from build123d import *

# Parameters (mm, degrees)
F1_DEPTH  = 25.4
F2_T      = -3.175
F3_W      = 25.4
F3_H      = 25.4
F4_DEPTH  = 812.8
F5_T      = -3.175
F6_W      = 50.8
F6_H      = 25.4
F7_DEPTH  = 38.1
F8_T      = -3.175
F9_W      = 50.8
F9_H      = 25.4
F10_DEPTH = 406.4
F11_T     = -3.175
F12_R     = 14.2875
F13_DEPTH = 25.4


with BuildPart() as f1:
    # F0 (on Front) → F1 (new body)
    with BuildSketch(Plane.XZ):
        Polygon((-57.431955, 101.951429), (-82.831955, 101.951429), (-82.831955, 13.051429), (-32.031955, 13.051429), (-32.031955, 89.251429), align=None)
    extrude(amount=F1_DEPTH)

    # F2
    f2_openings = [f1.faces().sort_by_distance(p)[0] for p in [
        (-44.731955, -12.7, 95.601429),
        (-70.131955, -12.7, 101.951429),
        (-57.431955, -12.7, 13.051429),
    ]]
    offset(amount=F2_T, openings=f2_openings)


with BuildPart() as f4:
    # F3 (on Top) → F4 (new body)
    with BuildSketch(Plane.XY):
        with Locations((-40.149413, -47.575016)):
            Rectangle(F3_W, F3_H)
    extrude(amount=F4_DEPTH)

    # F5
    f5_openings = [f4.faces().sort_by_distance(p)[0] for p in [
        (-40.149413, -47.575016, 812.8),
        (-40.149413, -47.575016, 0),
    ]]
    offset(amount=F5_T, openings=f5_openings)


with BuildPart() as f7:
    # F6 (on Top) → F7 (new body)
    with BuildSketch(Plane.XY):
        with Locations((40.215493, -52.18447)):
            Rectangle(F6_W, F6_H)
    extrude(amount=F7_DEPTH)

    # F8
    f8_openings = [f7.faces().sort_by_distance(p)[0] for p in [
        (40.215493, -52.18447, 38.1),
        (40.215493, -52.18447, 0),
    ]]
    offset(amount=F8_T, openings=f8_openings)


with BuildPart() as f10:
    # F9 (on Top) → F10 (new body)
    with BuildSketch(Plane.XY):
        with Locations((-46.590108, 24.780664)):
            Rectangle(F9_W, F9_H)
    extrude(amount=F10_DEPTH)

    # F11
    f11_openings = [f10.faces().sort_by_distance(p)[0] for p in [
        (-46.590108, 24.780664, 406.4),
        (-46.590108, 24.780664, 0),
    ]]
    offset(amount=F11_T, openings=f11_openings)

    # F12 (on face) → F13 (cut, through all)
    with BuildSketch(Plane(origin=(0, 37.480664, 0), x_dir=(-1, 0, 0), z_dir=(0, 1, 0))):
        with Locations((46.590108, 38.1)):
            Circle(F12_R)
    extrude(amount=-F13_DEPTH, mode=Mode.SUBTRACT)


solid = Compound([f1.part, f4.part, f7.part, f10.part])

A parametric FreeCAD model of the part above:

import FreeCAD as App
import Part
import Sketcher

V = App.Vector
Q = App.Units.Quantity


def faces_at(feature, points):
    """Names of the faces that lie closest to the given points."""
    faces = feature.Shape.Faces
    near = lambda p: min(range(len(faces)), key=lambda i: faces[i].distToShape(Part.Vertex(*p))[0])
    return sorted({f"Face{near(p) + 1}" for p in points})


def add_polygon(sketch, points):
    """Adds a closed chain of lines whose ends are joined by coincident constraints."""
    first, n = sketch.GeometryCount, len(points)
    for a, b in zip(points, points[1:] + points[:1]):
        sketch.addGeometry(Part.LineSegment(App.Vector(*a, 0), App.Vector(*b, 0)), False)
    for i in range(n):
        sketch.addConstraint(Sketcher.Constraint("Coincident", first + i, 2, first + (i + 1) % n, 1))

doc = App.newDocument("Part")
body = doc.addObject("PartDesign::Body", "Body")

sketch1 = body.newObject("Sketcher::SketchObject", "Sketch")
sketch1.AttachmentSupport = (doc.getObject("XZ_Plane"), [""])
sketch1.MapMode = "FlatFace"
add_polygon(sketch1, [(-57, 102), (-83, 102), (-83, 13), (-32, 13), (-32, 89)])
sketch1.addConstraint([
    Sketcher.Constraint("Horizontal", 0),
    Sketcher.Constraint("Vertical", 1),
    Sketcher.Constraint("Horizontal", 2),
    Sketcher.Constraint("Vertical", 3),
    Sketcher.Constraint("DistanceX", 0, 2, 0, 1, Q("1 in")),
    Sketcher.Constraint("DistanceX", 2, 1, 2, 2, Q("2 in")),
    Sketcher.Constraint("DistanceY", 3, 1, 3, 2, Q("3 in")),
    Sketcher.Constraint("DistanceY", 1, 2, 1, 1, Q("3.5 in")),
    Sketcher.Constraint("DistanceY", -1, 1, 0, 2, 101.951429),
    Sketcher.Constraint("DistanceX", 0, 2, -1, 1, 82.831955),
])
pad1 = body.newObject("PartDesign::Pad", "Pad")
pad1.Profile = sketch1
pad1.Length = Q("1 in")
doc.recompute()

thickness = body.newObject("PartDesign::Thickness", "Thickness")
thickness.Base = (pad1, faces_at(pad1, [(-44.732, -12.7, 95.601), (-70.132, -12.7, 101.951), (-57.432, -12.7, 13.051)]))
thickness.Value = Q("0.125 in")
thickness.Reversed = True
thickness.Join = "Arc"
body2 = doc.addObject("PartDesign::Body", "Body001")

sketch2 = body2.newObject("Sketcher::SketchObject", "Sketch001")
sketch2.AttachmentSupport = (doc.getObject("XY_Plane001"), [""])
sketch2.MapMode = "FlatFace"
add_polygon(sketch2, [(-53, -35), (-53, -60), (-27, -60), (-27, -35)])
sketch2.addConstraint([
    Sketcher.Constraint("Vertical", 0),
    Sketcher.Constraint("Horizontal", 1),
    Sketcher.Constraint("Vertical", 2),
    Sketcher.Constraint("Horizontal", 3),
    Sketcher.Constraint("Equal", 3, 0),
    Sketcher.Constraint("DistanceX", 1, 1, 1, 2, Q("1 in")),
    Sketcher.Constraint("DistanceX", 0, 2, -1, 1, 52.849413),
    Sketcher.Constraint("DistanceY", 0, 2, -1, 1, 60.275016),
])
pad2 = body2.newObject("PartDesign::Pad", "Pad001")
pad2.Profile = sketch2
pad2.Length = Q("32 in")
doc.recompute()

thickness2 = body2.newObject("PartDesign::Thickness", "Thickness001")
thickness2.Base = (pad2, faces_at(pad2, [(-40.149, -47.575, 812.8), (-40.149, -47.575, 0)]))
thickness2.Value = Q("0.125 in")
thickness2.Reversed = True
thickness2.Join = "Arc"
body3 = doc.addObject("PartDesign::Body", "Body002")

sketch3 = body3.newObject("Sketcher::SketchObject", "Sketch002")
sketch3.AttachmentSupport = (doc.getObject("XY_Plane002"), [""])
sketch3.MapMode = "FlatFace"
add_polygon(sketch3, [(15, -39), (15, -65), (66, -65), (66, -39)])
sketch3.addConstraint([
    Sketcher.Constraint("Vertical", 0),
    Sketcher.Constraint("Horizontal", 1),
    Sketcher.Constraint("Vertical", 2),
    Sketcher.Constraint("Horizontal", 3),
    Sketcher.Constraint("DistanceX", 1, 1, 1, 2, Q("2 in")),
    Sketcher.Constraint("DistanceY", 0, 2, 0, 1, Q("1 in")),
    Sketcher.Constraint("DistanceY", 0, 2, -1, 1, 64.88447),
    Sketcher.Constraint("DistanceX", -1, 1, 0, 2, 14.815493),
])
pad3 = body3.newObject("PartDesign::Pad", "Pad002")
pad3.Profile = sketch3
pad3.Length = Q("1.5 in")
doc.recompute()

thickness3 = body3.newObject("PartDesign::Thickness", "Thickness002")
thickness3.Base = (pad3, faces_at(pad3, [(40.215, -52.184, 38.1), (40.215, -52.184, 0)]))
thickness3.Value = Q("0.125 in")
thickness3.Reversed = True
thickness3.Join = "Arc"
body4 = doc.addObject("PartDesign::Body", "Body003")

sketch4 = body4.newObject("Sketcher::SketchObject", "Sketch003")
sketch4.AttachmentSupport = (doc.getObject("XY_Plane003"), [""])
sketch4.MapMode = "FlatFace"
add_polygon(sketch4, [(-72, 37), (-72, 12), (-21, 12), (-21, 37)])
sketch4.addConstraint([
    Sketcher.Constraint("Vertical", 0),
    Sketcher.Constraint("Horizontal", 1),
    Sketcher.Constraint("Vertical", 2),
    Sketcher.Constraint("Horizontal", 3),
    Sketcher.Constraint("DistanceX", 1, 1, 1, 2, Q("2 in")),
    Sketcher.Constraint("DistanceY", 0, 2, 0, 1, Q("1 in")),
    Sketcher.Constraint("DistanceX", 0, 2, -1, 1, 71.990108),
    Sketcher.Constraint("DistanceY", -1, 1, 0, 2, 12.080664),
])
pad4 = body4.newObject("PartDesign::Pad", "Pad003")
pad4.Profile = sketch4
pad4.Length = Q("16 in")
doc.recompute()

thickness4 = body4.newObject("PartDesign::Thickness", "Thickness003")
thickness4.Base = (pad4, faces_at(pad4, [(-46.59, 24.781, 406.4), (-46.59, 24.781, 0)]))
thickness4.Value = Q("0.125 in")
thickness4.Reversed = True
thickness4.Join = "Arc"

sketch5 = body4.newObject("Sketcher::SketchObject", "Sketch004")
sketch5.AttachmentSupport = (doc.getObject("XZ_Plane003"), [""])
sketch5.MapMode = "FlatFace"
sketch5.AttachmentOffset = App.Placement(V(0, 0, -37.480664), App.Rotation())
sketch5.addGeometry(Part.Circle(V(-47, 38, 0), V(0, 0, 1), 14), False)
sketch5.addConstraint([
    Sketcher.Constraint("Diameter", 0, Q("1.125 in")),
    Sketcher.Constraint("DistanceY", -1, 1, 0, 3, Q("1.5 in")),
    Sketcher.Constraint("DistanceX", 0, 3, -1, 1, 46.590108),
])
pocket1 = body4.newObject("PartDesign::Pocket", "Pocket")
pocket1.Profile = sketch5
pocket1.Type = "ThroughAll"
pocket1.Reversed = True

doc.recompute()
